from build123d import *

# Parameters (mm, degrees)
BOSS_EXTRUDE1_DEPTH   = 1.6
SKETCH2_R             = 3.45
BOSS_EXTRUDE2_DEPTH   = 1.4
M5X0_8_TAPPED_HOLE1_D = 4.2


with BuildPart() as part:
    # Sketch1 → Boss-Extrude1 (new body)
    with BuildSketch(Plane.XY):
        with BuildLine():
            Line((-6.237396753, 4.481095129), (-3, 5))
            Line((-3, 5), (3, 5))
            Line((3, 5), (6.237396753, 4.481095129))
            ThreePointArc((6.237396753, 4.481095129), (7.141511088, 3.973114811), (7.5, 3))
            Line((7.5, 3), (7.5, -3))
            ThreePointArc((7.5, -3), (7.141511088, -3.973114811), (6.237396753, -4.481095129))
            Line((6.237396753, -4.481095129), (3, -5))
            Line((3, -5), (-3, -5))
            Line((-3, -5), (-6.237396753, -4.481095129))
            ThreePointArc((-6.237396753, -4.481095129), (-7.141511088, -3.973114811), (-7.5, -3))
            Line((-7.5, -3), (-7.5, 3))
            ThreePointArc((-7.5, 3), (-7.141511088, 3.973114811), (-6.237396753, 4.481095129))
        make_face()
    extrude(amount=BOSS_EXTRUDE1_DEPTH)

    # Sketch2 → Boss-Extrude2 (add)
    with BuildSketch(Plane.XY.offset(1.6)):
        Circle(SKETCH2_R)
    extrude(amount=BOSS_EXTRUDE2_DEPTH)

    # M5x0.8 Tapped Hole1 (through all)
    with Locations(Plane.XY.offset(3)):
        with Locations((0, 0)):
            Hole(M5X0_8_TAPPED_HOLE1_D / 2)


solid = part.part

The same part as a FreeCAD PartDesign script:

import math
import FreeCAD as App
import Part
import Sketcher
Q = App.Units.Quantity

doc = App.newDocument("Part")
params = doc.addObject("Spreadsheet::Sheet", "Params")
for row, (alias, value) in enumerate([
    ("sketch1_radius", "1.5 mm"),
    ("sketch1_width", "6 mm"),
    ("pad1_length", "1.6 mm"),
    ("sketch2_diameter", "6.9 mm"),
    ("pad2_length", "1.4 mm"),
    ("sketch3_diameter", "4.2 mm"),
    ("hole_diameter", "4.2 mm"),
], start=1):
    params.set(f"A{row}", alias)
    params.set(f"B{row}", "=" + value)
    params.setAlias(f"B{row}", alias)

body = doc.addObject("PartDesign::Body", "Body")

sketch1 = body.newObject("Sketcher::SketchObject", "Sketch")
sketch1.AttachmentSupport = (doc.getObject("XY_Plane"), [""])
sketch1.MapMode = "FlatFace"
sketch1.addGeometry([
    Part.LineSegment(App.Vector(-3, 5, 0), App.Vector(-6.2, 4.5, 0)),
    Part.ArcOfCircle(Part.Circle(App.Vector(-6, 3, 0), App.Vector(0, 0, 1), 1.5), math.radians(99), math.radians(180)),
    Part.LineSegment(App.Vector(-7.5, 3, 0), App.Vector(-7.5, -3, 0)),
    Part.ArcOfCircle(Part.Circle(App.Vector(-6, -3, 0), App.Vector(0, 0, 1), 1.5), math.radians(180), math.radians(261)),
    Part.LineSegment(App.Vector(-6.2, -4.5, 0), App.Vector(-3, -5, 0)),
    Part.LineSegment(App.Vector(-3, -5, 0), App.Vector(3, -5, 0)),
    Part.LineSegment(App.Vector(3, -5, 0), App.Vector(6.2, -4.5, 0)),
    Part.ArcOfCircle(Part.Circle(App.Vector(6, -3, 0), App.Vector(0, 0, 1), 1.5), math.radians(-81), math.radians(0)),
    Part.LineSegment(App.Vector(7.5, -3, 0), App.Vector(7.5, 3, 0)),
    Part.ArcOfCircle(Part.Circle(App.Vector(6, 3, 0), App.Vector(0, 0, 1), 1.5), math.radians(0), math.radians(81)),
    Part.LineSegment(App.Vector(6.2, 4.5, 0), App.Vector(3, 5, 0)),
    Part.LineSegment(App.Vector(3, 5, 0), App.Vector(-3, 5, 0)),
], False)
sketch1.addConstraint([
    Sketcher.Constraint("Tangent", 0, 2, 1, 1),
    Sketcher.Constraint("Tangent", 1, 2, 2, 1),
    Sketcher.Constraint("Tangent", 2, 2, 3, 1),
    Sketcher.Constraint("Tangent", 3, 2, 4, 1),
    Sketcher.Constraint("Coincident", 4, 2, 5, 1),
    Sketcher.Constraint("Coincident", 5, 2, 6, 1),
    Sketcher.Constraint("Tangent", 6, 2, 7, 1),
    Sketcher.Constraint("Tangent", 7, 2, 8, 1),
    Sketcher.Constraint("Tangent", 8, 2, 9, 1),
    Sketcher.Constraint("Tangent", 9, 2, 10, 1),
    Sketcher.Constraint("Coincident", 10, 2, 11, 1),
    Sketcher.Constraint("Coincident", 11, 2, 0, 1),
    Sketcher.Constraint("Vertical", 2),
    Sketcher.Constraint("Horizontal", 5),
    Sketcher.Constraint("Vertical", 8),
    Sketcher.Constraint("Horizontal", 11),
    Sketcher.Constraint("Equal", 1, 3),
    Sketcher.Constraint("Equal", 3, 7),
    Sketcher.Constraint("Equal", 7, 9),
    Sketcher.Constraint("Symmetric", 1, 3, 7, 3, -1, 1),
    Sketcher.Constraint("Symmetric", 3, 2, 9, 2, -1, 1),
    Sketcher.Constraint("Symmetric", 5, 2, 11, 2, -1, 1),
    Sketcher.Constraint("Symmetric", 3, 2, 6, 2, -2),
    Sketcher.Constraint("Equal", 11, 2),
    Sketcher.Constraint("Radius", 1, Q("1.5 mm")),
    Sketcher.Constraint("DistanceX", 5, 1, 5, 2, Q("6 mm")),
    Sketcher.Constraint("DistanceX", 1, 3, -1, 1, Q("6 mm")),
    Sketcher.Constraint("DistanceY", 4, 2, -1, 1, Q("5 mm")),
])
sketch1.setExpression("Constraints[24]", "Params.sketch1_radius")
sketch1.setExpression("Constraints[25]", "Params.sketch1_width")
pad1 = body.newObject("PartDesign::Pad", "Pad")
pad1.Profile = sketch1
pad1.setExpression("Length", "Params.pad1_length")

sketch2 = body.newObject("Sketcher::SketchObject", "Sketch001")
sketch2.AttachmentSupport = (doc.getObject("XY_Plane"), [""])
sketch2.MapMode = "FlatFace"
sketch2.AttachmentOffset = App.Placement(App.Vector(0, 0, 1.6), App.Rotation())
sketch2.addGeometry(Part.Circle(App.Vector(0, 0, 0), App.Vector(0, 0, 1), 3.5), False)
sketch2.addConstraint([
    Sketcher.Constraint("Coincident", 0, 3, -1, 1),
    Sketcher.Constraint("Diameter", 0, Q("6.9 mm")),
])
sketch2.setExpression("Constraints[1]", "Params.sketch2_diameter")
pad2 = body.newObject("PartDesign::Pad", "Pad001")
pad2.Profile = sketch2
pad2.setExpression("Length", "Params.pad2_length")

sketch3 = body.newObject("Sketcher::SketchObject", "Sketch002")
sketch3.AttachmentSupport = (doc.getObject("XY_Plane"), [""])
sketch3.MapMode = "FlatFace"
sketch3.AttachmentOffset = App.Placement(App.Vector(0, 0, 3), App.Rotation())
sketch3.addGeometry(Part.Circle(App.Vector(0, 0, 0), App.Vector(0, 0, 1), 2.1), False)
sketch3.addConstraint([
    Sketcher.Constraint("Coincident", 0, 3, -1, 1),
    Sketcher.Constraint("Diameter", 0, Q("4.2 mm")),
])
sketch3.setExpression("Constraints[1]", "Params.sketch3_diameter")
doc.recompute()
hole = body.newObject("PartDesign::Hole", "Hole")
hole.Profile = sketch3
hole.ThreadType = "None"
hole.setExpression("Diameter", "Params.hole_diameter")
hole.DepthType = "ThroughAll"

doc.recompute()
